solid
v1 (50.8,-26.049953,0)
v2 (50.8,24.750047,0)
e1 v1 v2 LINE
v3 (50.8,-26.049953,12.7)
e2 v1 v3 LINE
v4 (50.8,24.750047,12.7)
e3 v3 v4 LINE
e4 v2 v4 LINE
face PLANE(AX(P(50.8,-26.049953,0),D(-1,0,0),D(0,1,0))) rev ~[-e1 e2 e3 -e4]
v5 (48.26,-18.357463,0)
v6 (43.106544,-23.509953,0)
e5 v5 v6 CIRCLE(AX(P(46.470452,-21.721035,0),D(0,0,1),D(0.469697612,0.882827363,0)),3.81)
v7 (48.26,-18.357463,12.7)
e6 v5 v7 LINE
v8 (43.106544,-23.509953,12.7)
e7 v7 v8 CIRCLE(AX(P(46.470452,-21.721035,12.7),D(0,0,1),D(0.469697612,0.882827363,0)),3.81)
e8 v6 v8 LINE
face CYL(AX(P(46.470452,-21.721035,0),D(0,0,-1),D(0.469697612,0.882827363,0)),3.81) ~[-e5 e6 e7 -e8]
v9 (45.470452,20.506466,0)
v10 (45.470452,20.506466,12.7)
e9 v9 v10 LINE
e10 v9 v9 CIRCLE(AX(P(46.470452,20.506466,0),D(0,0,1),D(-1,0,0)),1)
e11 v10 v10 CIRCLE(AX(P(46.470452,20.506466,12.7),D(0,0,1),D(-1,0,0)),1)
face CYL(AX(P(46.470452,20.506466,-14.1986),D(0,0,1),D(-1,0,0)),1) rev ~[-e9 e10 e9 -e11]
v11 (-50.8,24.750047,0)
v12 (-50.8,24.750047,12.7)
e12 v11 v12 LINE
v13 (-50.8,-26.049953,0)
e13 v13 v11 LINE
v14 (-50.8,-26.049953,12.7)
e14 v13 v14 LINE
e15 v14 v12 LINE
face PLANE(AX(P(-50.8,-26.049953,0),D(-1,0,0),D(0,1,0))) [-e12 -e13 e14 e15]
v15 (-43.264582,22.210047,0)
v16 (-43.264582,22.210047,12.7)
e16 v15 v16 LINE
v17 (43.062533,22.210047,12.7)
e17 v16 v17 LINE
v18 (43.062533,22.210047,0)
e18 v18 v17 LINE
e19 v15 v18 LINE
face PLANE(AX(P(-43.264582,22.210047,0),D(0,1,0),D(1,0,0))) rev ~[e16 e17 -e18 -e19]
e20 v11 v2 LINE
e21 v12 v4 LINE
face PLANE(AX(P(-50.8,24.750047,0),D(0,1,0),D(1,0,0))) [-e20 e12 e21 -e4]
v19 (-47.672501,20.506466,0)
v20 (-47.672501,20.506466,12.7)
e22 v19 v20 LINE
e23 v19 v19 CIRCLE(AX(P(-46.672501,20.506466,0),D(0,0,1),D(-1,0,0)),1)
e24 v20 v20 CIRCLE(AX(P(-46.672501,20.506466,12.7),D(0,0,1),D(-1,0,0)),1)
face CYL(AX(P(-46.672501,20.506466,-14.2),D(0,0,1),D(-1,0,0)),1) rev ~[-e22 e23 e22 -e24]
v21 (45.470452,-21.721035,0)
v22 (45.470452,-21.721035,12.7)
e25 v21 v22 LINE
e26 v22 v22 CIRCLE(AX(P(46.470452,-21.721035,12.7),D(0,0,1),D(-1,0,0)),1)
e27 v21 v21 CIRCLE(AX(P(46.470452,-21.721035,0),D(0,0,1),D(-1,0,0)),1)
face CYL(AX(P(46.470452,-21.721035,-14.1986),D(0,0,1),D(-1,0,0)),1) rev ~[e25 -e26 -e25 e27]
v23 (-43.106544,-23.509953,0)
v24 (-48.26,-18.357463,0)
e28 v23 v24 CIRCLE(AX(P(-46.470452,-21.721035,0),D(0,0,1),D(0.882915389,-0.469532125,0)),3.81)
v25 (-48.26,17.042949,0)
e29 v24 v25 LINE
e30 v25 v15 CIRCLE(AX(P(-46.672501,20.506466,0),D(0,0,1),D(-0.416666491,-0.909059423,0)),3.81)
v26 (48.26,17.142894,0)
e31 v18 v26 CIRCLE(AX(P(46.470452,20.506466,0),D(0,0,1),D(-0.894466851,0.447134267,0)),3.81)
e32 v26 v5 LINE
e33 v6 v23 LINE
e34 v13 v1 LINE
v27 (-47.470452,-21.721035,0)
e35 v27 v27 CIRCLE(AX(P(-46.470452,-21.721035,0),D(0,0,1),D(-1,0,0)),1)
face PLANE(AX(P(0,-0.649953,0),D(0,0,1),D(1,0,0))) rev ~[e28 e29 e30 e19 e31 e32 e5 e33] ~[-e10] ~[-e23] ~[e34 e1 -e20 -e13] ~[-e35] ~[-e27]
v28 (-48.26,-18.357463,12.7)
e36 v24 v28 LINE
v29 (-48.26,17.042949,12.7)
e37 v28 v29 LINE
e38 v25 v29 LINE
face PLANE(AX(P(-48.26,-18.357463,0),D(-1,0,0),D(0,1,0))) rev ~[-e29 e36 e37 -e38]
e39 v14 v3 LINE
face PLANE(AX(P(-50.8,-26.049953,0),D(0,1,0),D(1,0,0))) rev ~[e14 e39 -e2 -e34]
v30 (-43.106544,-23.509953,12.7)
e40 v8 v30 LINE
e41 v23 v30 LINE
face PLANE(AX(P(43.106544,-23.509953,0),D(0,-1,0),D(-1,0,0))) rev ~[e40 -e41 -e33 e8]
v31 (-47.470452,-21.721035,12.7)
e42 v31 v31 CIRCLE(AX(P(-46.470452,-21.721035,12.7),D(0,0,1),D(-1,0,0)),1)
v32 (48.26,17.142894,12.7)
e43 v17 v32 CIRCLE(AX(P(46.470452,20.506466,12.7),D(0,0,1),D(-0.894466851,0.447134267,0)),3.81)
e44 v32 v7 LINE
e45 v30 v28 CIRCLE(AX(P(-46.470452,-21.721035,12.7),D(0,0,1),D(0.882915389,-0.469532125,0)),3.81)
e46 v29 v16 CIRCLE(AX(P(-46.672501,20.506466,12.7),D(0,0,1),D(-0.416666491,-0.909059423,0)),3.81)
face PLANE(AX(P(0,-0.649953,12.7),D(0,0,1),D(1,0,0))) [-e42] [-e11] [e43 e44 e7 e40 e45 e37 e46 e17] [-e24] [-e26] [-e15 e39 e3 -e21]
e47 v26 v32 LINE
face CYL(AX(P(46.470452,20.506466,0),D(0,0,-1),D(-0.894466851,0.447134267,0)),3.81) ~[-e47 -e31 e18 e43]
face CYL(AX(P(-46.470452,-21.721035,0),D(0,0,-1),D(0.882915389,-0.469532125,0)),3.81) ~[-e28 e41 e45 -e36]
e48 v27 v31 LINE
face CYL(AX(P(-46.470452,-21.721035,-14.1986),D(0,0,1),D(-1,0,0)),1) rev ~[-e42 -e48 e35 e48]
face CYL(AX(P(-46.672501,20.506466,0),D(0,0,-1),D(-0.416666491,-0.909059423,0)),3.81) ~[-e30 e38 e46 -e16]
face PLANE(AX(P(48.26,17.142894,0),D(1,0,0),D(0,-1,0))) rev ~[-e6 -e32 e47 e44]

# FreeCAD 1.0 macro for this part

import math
import FreeCAD as App
import Part
import Sketcher

V = App.Vector
Q = App.Units.Quantity

doc = App.newDocument("Part")
params = doc.addObject("Spreadsheet::Sheet", "Params")
for row, (alias, value) in enumerate([
    ("sketch1_width", "4 in"),
    ("sketch1_height", "2 in"),
    ("sketch1_radius", "0.15 in"),
    ("pad1_length", "0.5 in"),
    ("hole_diameter", "2 mm"),
    ("hole_depth", "0.559 in"),
    ("hole2_diameter", "2 mm"),
    ("hole2_depth", "0.559 in"),
    ("hole3_diameter", "2 mm"),
    ("hole3_depth", "0.559 in"),
    ("hole4_diameter", "2 mm"),
    ("hole4_depth", "14.2 mm"),
], start=1):
    params.set(f"A{row}", alias)
    params.set(f"B{row}", "=" + value)
    params.setAlias(f"B{row}", alias)

body = doc.addObject("PartDesign::Body", "Body")

sketch1 = doc.addObject("Sketcher::SketchObject", "Sketch")
body.addObject(sketch1)
sketch1.AttachmentSupport = (doc.XY_Plane, [""])
sketch1.MapMode = "FlatFace"
sketch1.addGeometry([
    Part.LineSegment(V(-50.8, 24.8, 0), V(-50.8, -26, 0)),
    Part.LineSegment(V(-50.8, -26, 0), V(50.8, -26, 0)),
    Part.LineSegment(V(50.8, -26, 0), V(50.8, 24.8, 0)),
    Part.LineSegment(V(50.8, 24.8, 0), V(-50.8, 24.8, 0)),
    Part.LineSegment(V(-48.3, -18.4, 0), V(-48.3, 17, 0)),
    Part.ArcOfCircle(Part.Circle(V(-46.7, 20.5, 0), V(0, 0, 1), 3.8), math.radians(-115), math.radians(27)),
    Part.LineSegment(V(-43.3, 22.2, 0), V(43.1, 22.2, 0)),
    Part.ArcOfCircle(Part.Circle(V(46.5, 20.5, 0), V(0, 0, 1), 3.8), math.radians(153), math.radians(298)),
    Part.LineSegment(V(48.3, 17.1, 0), V(48.3, -18.4, 0)),
    Part.ArcOfCircle(Part.Circle(V(46.5, -21.7, 0), V(0, 0, 1), 3.8), math.radians(62), math.radians(208)),
    Part.LineSegment(V(43.1, -23.5, 0), V(-43.1, -23.5, 0)),
    Part.ArcOfCircle(Part.Circle(V(-46.5, -21.7, 0), V(0, 0, 1), 3.8), math.radians(-28), math.radians(118)),
], False)
sketch1.addConstraint([
    Sketcher.Constraint("Coincident", 0, 2, 1, 1),
    Sketcher.Constraint("Coincident", 1, 2, 2, 1),
    Sketcher.Constraint("Coincident", 2, 2, 3, 1),
    Sketcher.Constraint("Coincident", 3, 2, 0, 1),
    Sketcher.Constraint("Coincident", 4, 2, 5, 1),
    Sketcher.Constraint("Coincident", 5, 2, 6, 1),
    Sketcher.Constraint("Coincident", 6, 2, 7, 1),
    Sketcher.Constraint("Coincident", 7, 2, 8, 1),
    Sketcher.Constraint("Coincident", 8, 2, 9, 1),
    Sketcher.Constraint("Coincident", 9, 2, 10, 1),
    Sketcher.Constraint("Coincident", 10, 2, 11, 1),
    Sketcher.Constraint("Coincident", 11, 2, 4, 1),
    Sketcher.Constraint("Vertical", 0),
    Sketcher.Constraint("Horizontal", 1),
    Sketcher.Constraint("Vertical", 2),
    Sketcher.Constraint("Horizontal", 3),
    Sketcher.Constraint("Vertical", 4),
    Sketcher.Constraint("Horizontal", 6),
    Sketcher.Constraint("Vertical", 8),
    Sketcher.Constraint("Horizontal", 10),
    Sketcher.Constraint("Equal", 5, 7),
    Sketcher.Constraint("Equal", 7, 9),
    Sketcher.Constraint("Equal", 9, 11),
    Sketcher.Constraint("Symmetric", 9, 3, 11, 3, -2),
    Sketcher.Constraint("Horizontal", 5, 3, 7, 3),
    Sketcher.Constraint("Horizontal", 8, 2, 11, 2),
    Sketcher.Constraint("Vertical", 7, 3, 9, 3),
    Sketcher.Constraint("DistanceX", 1, 1, 1, 2, Q("4 in")),
    Sketcher.Constraint("DistanceY", 0, 2, 0, 1, Q("2 in")),
    Sketcher.Constraint("Radius", 5, Q("0.15 in")),
    Sketcher.Constraint("DistanceX", 0, 2, -1, 1, Q("2 in")),
    Sketcher.Constraint("DistanceX", 4, 2, -1, 1, Q("1.9 in")),
    Sketcher.Constraint("DistanceY", 5, 2, 3, 2, Q("0.1 in")),
    Sketcher.Constraint("DistanceY", 1, 2, 9, 2, Q("0.1 in")),
    Sketcher.Constraint("DistanceX", 4, 2, 5, 3, Q("0.0625 in")),
    Sketcher.Constraint("DistanceY", 9, 3, 7, 3, Q("1.6625 in")),
    Sketcher.Constraint("DistanceX", 10, 2, 10, 1, 86.213089),
    Sketcher.Constraint("DistanceX", 6, 1, 6, 2, 86.327115),
    Sketcher.Constraint("DistanceY", -1, 1, 4, 2, 17.042949),
])
sketch1.setExpression("Constraints[27]", "Params.sketch1_width")
sketch1.setExpression("Constraints[28]", "Params.sketch1_height")
sketch1.setExpression("Constraints[29]", "Params.sketch1_radius")
pad1 = doc.addObject("PartDesign::Pad", "Pad")
body.addObject(pad1)
pad1.Profile = sketch1
pad1.setExpression("Length", "Params.pad1_length")

sketch2 = doc.addObject("Sketcher::SketchObject", "Sketch001")
body.addObject(sketch2)
sketch2.AttachmentSupport = (doc.XY_Plane, [""])
sketch2.MapMode = "FlatFace"
sketch2.addGeometry(Part.Circle(V(46.5, 20.5, 0), V(0, 0, 1), 1), False)
sketch2.addConstraint([
    Sketcher.Constraint("Diameter", 0, 2.0),
    Sketcher.Constraint("DistanceX", -1, 1, 0, 3, 46.470452),
    Sketcher.Constraint("DistanceY", -1, 1, 0, 3, 20.506466),
])
doc.recompute()
hole = doc.addObject("PartDesign::Hole", "Hole")
body.addObject(hole)
hole.Profile = sketch2
hole.ThreadType = "None"
hole.setExpression("Diameter", "Params.hole_diameter")
hole.DepthType = "Dimension"
hole.setExpression("Depth", "Params.hole_depth")
hole.DrillPoint = "Angled"
hole.DrillPointAngle = 118
hole.Reversed = True

sketch3 = doc.addObject("Sketcher::SketchObject", "Sketch002")
body.addObject(sketch3)
sketch3.AttachmentSupport = (doc.XY_Plane, [""])
sketch3.MapMode = "FlatFace"
sketch3.addGeometry(Part.Circle(V(-46.5, -21.7, 0), V(0, 0, 1), 1), False)
sketch3.addConstraint([
    Sketcher.Constraint("Diameter", 0, 2.0),
    Sketcher.Constraint("DistanceX", 0, 3, -1, 1, 46.470452),
    Sketcher.Constraint("DistanceY", 0, 3, -1, 1, 21.721035),
])
doc.recompute()
hole2 = doc.addObject("PartDesign::Hole", "Hole001")
body.addObject(hole2)
hole2.Profile = sketch3
hole2.ThreadType = "None"
hole2.setExpression("Diameter", "Params.hole2_diameter")
hole2.DepthType = "Dimension"
hole2.setExpression("Depth", "Params.hole2_depth")
hole2.DrillPoint = "Angled"
hole2.DrillPointAngle = 118
hole2.Reversed = True

sketch4 = doc.addObject("Sketcher::SketchObject", "Sketch003")
body.addObject(sketch4)
sketch4.AttachmentSupport = (doc.XY_Plane, [""])
sketch4.MapMode = "FlatFace"
sketch4.addGeometry(Part.Circle(V(46.5, -21.7, 0), V(0, 0, 1), 1), False)
sketch4.addConstraint([
    Sketcher.Constraint("Diameter", 0, 2.0),
    Sketcher.Constraint("DistanceX", -1, 1, 0, 3, 46.470452),
    Sketcher.Constraint("DistanceY", 0, 3, -1, 1, 21.721035),
])
doc.recompute()
hole3 = doc.addObject("PartDesign::Hole", "Hole002")
body.addObject(hole3)
hole3.Profile = sketch4
hole3.ThreadType = "None"
hole3.setExpression("Diameter", "Params.hole3_diameter")
hole3.DepthType = "Dimension"
hole3.setExpression("Depth", "Params.hole3_depth")
hole3.DrillPoint = "Angled"
hole3.DrillPointAngle = 118
hole3.Reversed = True

sketch5 = doc.addObject("Sketcher::SketchObject", "Sketch004")
body.addObject(sketch5)
sketch5.AttachmentSupport = (doc.XY_Plane, [""])
sketch5.MapMode = "FlatFace"
sketch5.addGeometry(Part.Circle(V(-46.7, 20.5, 0), V(0, 0, 1), 1), False)
sketch5.addConstraint([
    Sketcher.Constraint("Diameter", 0, 2.0),
    Sketcher.Constraint("DistanceX", 0, 3, -1, 1, Q("1.8375 in")),
    Sketcher.Constraint("DistanceY", -1, 1, 0, 3, 20.506466),
])
doc.recompute()
hole4 = doc.addObject("PartDesign::Hole", "Hole003")
body.addObject(hole4)
hole4.Profile = sketch5
hole4.ThreadType = "None"
hole4.setExpression("Diameter", "Params.hole4_diameter")
hole4.DepthType = "Dimension"
hole4.setExpression("Depth", "Params.hole4_depth")
hole4.DrillPoint = "Angled"
hole4.DrillPointAngle = 118
hole4.Reversed = True

doc.recompute()
